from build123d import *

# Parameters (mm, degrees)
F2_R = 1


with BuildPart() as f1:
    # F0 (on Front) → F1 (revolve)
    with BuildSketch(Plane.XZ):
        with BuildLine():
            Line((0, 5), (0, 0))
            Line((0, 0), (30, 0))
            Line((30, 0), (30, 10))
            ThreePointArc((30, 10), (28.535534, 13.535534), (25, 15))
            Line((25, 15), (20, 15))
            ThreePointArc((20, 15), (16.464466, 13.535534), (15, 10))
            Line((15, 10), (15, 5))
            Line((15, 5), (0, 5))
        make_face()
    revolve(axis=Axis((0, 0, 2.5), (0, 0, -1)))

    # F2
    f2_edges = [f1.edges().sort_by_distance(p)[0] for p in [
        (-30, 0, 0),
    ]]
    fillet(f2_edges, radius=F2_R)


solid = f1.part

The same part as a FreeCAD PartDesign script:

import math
import FreeCAD as App
import Part
import Sketcher
from FreeCAD import Vector
Q = App.Units.Quantity


def edges_at(feature, points):
    """Names of the edges that pass closest to the given points."""
    edges = feature.Shape.Edges
    near = lambda p: min(range(len(edges)), key=lambda i: edges[i].distToShape(Part.Vertex(*p))[0])
    return sorted({f"Edge{near(p) + 1}" for p in points})

doc = App.newDocument("Part")
params = doc.addObject("Spreadsheet::Sheet", "Params")
for row, (alias, value) in enumerate([
    ("sketch1_radius", "5 mm"),
    ("sketch1_width", "30 mm"),
    ("sketch1_width2", "5 mm"),
    ("revolution_angle", "360 deg"),
    ("fillet_radius", "1 mm"),
], start=1):
    params.set(f"A{row}", alias)
    params.set(f"B{row}", "=" + value)
    params.setAlias(f"B{row}", alias)

body = doc.addObject("PartDesign::Body", "Body")

# Sketch on XZ plane
sketch1 = doc.addObject("Sketcher::SketchObject", "Sketch")
body.addObject(sketch1)
sketch1.AttachmentSupport = (doc.XZ_Plane, [""])
sketch1.MapMode = "FlatFace"
sketch1.addGeometry(Part.LineSegment(Vector(0, 5, 0), Vector(0, 0, 0)), False)
sketch1.addGeometry(Part.LineSegment(Vector(0, 0, 0), Vector(30, 0, 0)), False)
sketch1.addGeometry(Part.LineSegment(Vector(30, 0, 0), Vector(30, 10, 0)), False)
sketch1.addGeometry(Part.ArcOfCircle(Part.Circle(Vector(25, 10, 0), Vector(0, 0, 1), 5), math.radians(0), math.radians(90)), False)
sketch1.addGeometry(Part.LineSegment(Vector(25, 15, 0), Vector(20, 15, 0)), False)
sketch1.addGeometry(Part.ArcOfCircle(Part.Circle(Vector(20, 10, 0), Vector(0, 0, 1), 5), math.radians(90), math.radians(180)), False)
sketch1.addGeometry(Part.LineSegment(Vector(15, 10, 0), Vector(15, 5, 0)), False)
sketch1.addGeometry(Part.LineSegment(Vector(15, 5, 0), Vector(0, 5, 0)), False)
sketch1.addConstraint(Sketcher.Constraint("Coincident", 0, 2, 1, 1))
sketch1.addConstraint(Sketcher.Constraint("Coincident", 1, 2, 2, 1))
sketch1.addConstraint(Sketcher.Constraint("Tangent", 2, 2, 3, 1))
sketch1.addConstraint(Sketcher.Constraint("Tangent", 3, 2, 4, 1))
sketch1.addConstraint(Sketcher.Constraint("Tangent", 4, 2, 5, 1))
sketch1.addConstraint(Sketcher.Constraint("Tangent", 5, 2, 6, 1))
sketch1.addConstraint(Sketcher.Constraint("Coincident", 6, 2, 7, 1))
sketch1.addConstraint(Sketcher.Constraint("Coincident", 7, 2, 0, 1))
sketch1.addConstraint(Sketcher.Constraint("Vertical", 0))
sketch1.addConstraint(Sketcher.Constraint("Horizontal", 1))
sketch1.addConstraint(Sketcher.Constraint("Vertical", 2))
sketch1.addConstraint(Sketcher.Constraint("Horizontal", 4))
sketch1.addConstraint(Sketcher.Constraint("Vertical", 6))
sketch1.addConstraint(Sketcher.Constraint("Horizontal", 7))
sketch1.addConstraint(Sketcher.Constraint("Coincident", 0, 2, -1, 1))
sketch1.addConstraint(Sketcher.Constraint("Equal", 3, 5))
sketch1.addConstraint(Sketcher.Constraint("Equal", 4, 0))
sketch1.addConstraint(Sketcher.Constraint("Equal", 0, 6))
sketch1.addConstraint(Sketcher.Constraint("Radius", 3, Q("5 mm")))
sketch1.addConstraint(Sketcher.Constraint("DistanceX", 1, 1, 1, 2, Q("30 mm")))
sketch1.addConstraint(Sketcher.Constraint("DistanceX", 4, 2, 4, 1, Q("5 mm")))
sketch1.setExpression("Constraints[18]", "Params.sketch1_radius")
sketch1.setExpression("Constraints[19]", "Params.sketch1_width")
sketch1.setExpression("Constraints[20]", "Params.sketch1_width2")
revolution = doc.addObject("PartDesign::Revolution", "Revolution")
body.addObject(revolution)
revolution.Profile = sketch1
revolution.ReferenceAxis = (sketch1, ["V_Axis"])
revolution.setExpression("Angle", "Params.revolution_angle")
doc.recompute()

fillet = doc.addObject("PartDesign::Fillet", "Fillet")
body.addObject(fillet)
fillet.Base = (revolution, edges_at(revolution, [(-30, 0, 0)]))
fillet.setExpression("Radius", "Params.fillet_radius")

doc.recompute()
